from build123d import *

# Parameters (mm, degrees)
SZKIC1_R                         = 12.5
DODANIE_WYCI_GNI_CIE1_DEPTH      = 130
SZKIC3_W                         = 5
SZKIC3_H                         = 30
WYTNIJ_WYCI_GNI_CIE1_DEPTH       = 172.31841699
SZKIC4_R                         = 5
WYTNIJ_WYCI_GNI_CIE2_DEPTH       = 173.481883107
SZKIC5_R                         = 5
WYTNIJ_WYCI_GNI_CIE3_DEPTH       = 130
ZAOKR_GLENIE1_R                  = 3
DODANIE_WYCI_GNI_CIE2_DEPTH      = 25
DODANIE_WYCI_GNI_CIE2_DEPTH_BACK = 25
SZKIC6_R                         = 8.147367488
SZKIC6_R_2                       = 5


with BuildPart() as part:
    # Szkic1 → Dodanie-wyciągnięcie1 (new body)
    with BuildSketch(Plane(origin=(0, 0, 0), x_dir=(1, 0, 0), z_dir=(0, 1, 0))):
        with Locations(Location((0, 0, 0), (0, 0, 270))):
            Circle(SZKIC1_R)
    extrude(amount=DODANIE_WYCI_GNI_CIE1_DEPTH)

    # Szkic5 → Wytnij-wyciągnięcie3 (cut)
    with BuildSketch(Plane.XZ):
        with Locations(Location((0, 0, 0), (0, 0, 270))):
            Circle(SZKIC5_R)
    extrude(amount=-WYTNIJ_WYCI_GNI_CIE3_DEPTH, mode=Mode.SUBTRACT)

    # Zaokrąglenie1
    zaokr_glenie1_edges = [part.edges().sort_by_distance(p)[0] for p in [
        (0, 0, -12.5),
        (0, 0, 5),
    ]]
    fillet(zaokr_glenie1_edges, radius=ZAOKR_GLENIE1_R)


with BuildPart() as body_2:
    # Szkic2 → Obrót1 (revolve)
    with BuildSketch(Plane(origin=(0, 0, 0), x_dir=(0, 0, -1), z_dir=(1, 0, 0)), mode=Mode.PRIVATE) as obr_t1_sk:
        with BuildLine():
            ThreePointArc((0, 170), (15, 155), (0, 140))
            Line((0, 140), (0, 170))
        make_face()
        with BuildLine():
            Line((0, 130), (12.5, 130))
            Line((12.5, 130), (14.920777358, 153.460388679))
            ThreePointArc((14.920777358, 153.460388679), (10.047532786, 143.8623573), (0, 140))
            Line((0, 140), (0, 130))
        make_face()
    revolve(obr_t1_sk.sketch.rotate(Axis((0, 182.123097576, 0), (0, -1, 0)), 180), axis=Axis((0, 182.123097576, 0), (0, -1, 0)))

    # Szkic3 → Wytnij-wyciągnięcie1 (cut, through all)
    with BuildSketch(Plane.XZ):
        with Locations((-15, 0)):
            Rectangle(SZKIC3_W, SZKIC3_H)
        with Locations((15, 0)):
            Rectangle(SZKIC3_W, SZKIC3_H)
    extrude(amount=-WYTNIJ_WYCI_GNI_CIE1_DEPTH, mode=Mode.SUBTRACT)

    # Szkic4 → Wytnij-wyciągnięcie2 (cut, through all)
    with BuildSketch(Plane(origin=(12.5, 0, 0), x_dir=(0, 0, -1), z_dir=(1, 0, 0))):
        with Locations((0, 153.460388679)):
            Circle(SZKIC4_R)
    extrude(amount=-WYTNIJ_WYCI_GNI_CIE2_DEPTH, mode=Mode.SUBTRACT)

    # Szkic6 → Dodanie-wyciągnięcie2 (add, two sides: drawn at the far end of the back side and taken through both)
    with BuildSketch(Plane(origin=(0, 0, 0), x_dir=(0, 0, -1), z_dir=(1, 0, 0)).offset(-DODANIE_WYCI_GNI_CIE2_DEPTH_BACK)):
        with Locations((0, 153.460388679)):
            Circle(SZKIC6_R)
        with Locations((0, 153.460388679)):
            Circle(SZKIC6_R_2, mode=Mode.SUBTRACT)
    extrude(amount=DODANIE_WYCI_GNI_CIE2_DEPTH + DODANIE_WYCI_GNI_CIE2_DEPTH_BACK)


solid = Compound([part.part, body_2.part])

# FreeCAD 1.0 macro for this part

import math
import FreeCAD as App
import Part
import Sketcher


def edges_at(feature, points):
    """Names of the edges that pass closest to the given points."""
    edges = feature.Shape.Edges
    near = lambda p: min(range(len(edges)), key=lambda i: edges[i].distToShape(Part.Vertex(*p))[0])
    return sorted({f"Edge{near(p) + 1}" for p in points})

doc = App.newDocument("Part")
body = doc.addObject("PartDesign::Body", "Body")

# Sketch on XZ plane
sketch1 = body.newObject("Sketcher::SketchObject", "Sketch")
sketch1.AttachmentSupport = (doc.getObject("XZ_Plane"), [""])
sketch1.MapMode = "FlatFace"
sketch1.addGeometry(Part.Circle(App.Vector(0, 0, 0), App.Vector(0, 0, 1), 12), False)
sketch1.addConstraint([
    Sketcher.Constraint("Coincident", 0, 3, -1, 1),
    Sketcher.Constraint("Diameter", 0, 25.0),
])
pad1 = body.newObject("PartDesign::Pad", "Pad")
pad1.Profile = sketch1
pad1.Length = 130
pad1.Reversed = True

# Sketch on XZ plane
sketch2 = body.newObject("Sketcher::SketchObject", "Sketch001")
sketch2.AttachmentSupport = (doc.getObject("XZ_Plane"), [""])
sketch2.MapMode = "FlatFace"
sketch2.addGeometry(Part.Circle(App.Vector(0, 0, 0), App.Vector(0, 0, 1), 5), False)
sketch2.addConstraint([
    Sketcher.Constraint("Coincident", 0, 3, -1, 1),
    Sketcher.Constraint("Diameter", 0, 10.0),
])
pocket1 = body.newObject("PartDesign::Pocket", "Pocket")
pocket1.Profile = sketch2
pocket1.Length = 130
doc.recompute()

fillet = body.newObject("PartDesign::Fillet", "Fillet")
fillet.Base = (pocket1, edges_at(pocket1, [(0, 0, -12.5), (0, 0, 5)]))
fillet.Radius = 3
body2 = doc.addObject("PartDesign::Body", "Body001")

# Sketch on YZ plane
sketch3 = body2.newObject("Sketcher::SketchObject", "Sketch002")
sketch3.AttachmentSupport = (doc.getObject("YZ_Plane001"), [""])
sketch3.MapMode = "FlatFace"
sketch3.addGeometry([
    Part.ArcOfCircle(Part.Circle(App.Vector(155, 0, 0), App.Vector(0, 0, 1), 15), math.radians(-96), math.radians(0)),
    Part.LineSegment(App.Vector(170, 0, 0), App.Vector(130, 0, 0)),
    Part.LineSegment(App.Vector(130, 0, 0), App.Vector(130, -12, 0)),
    Part.LineSegment(App.Vector(130, -12, 0), App.Vector(153, -15, 0)),
], False)
sketch3.addConstraint([
    Sketcher.Constraint("Coincident", 0, 2, 1, 1),
    Sketcher.Constraint("Coincident", 1, 2, 2, 1),
    Sketcher.Constraint("Coincident", 2, 2, 3, 1),
    Sketcher.Constraint("Tangent", 3, 2, 0, 1),
    Sketcher.Constraint("Horizontal", 1),
    Sketcher.Constraint("Vertical", 2),
    Sketcher.Constraint("PointOnObject", 0, 3, -1),
    Sketcher.Constraint("PointOnObject", 0, 2, -1),
    Sketcher.Constraint("Radius", 0, 15.0),
    Sketcher.Constraint("DistanceX", 1, 2, 1, 1, 40.0),
    Sketcher.Constraint("DistanceY", 2, 2, 2, 1, 12.5),
    Sketcher.Constraint("DistanceX", -1, 1, 0, 3, 155.0),
])
revolution = body2.newObject("PartDesign::Revolution", "Revolution")
revolution.Profile = sketch3
revolution.ReferenceAxis = (sketch3, ["H_Axis"])
revolution.Angle = 360

# Sketch on XZ plane
sketch4 = body2.newObject("Sketcher::SketchObject", "Sketch003")
sketch4.AttachmentSupport = (doc.getObject("XZ_Plane001"), [""])
sketch4.MapMode = "FlatFace"
sketch4.addGeometry([
    Part.LineSegment(App.Vector(-18, 15, 0), App.Vector(-18, -15, 0)),  # 0
    Part.LineSegment(App.Vector(-18, -15, 0), App.Vector(-12, -15, 0)),  # 1
    Part.LineSegment(App.Vector(-12, -15, 0), App.Vector(-12, 15, 0)),  # 2
    Part.LineSegment(App.Vector(-12, 15, 0), App.Vector(-18, 15, 0)),  # 3
    Part.LineSegment(App.Vector(12, 15, 0), App.Vector(12, -15, 0)),  # 4
    Part.LineSegment(App.Vector(12, -15, 0), App.Vector(18, -15, 0)),  # 5
    Part.LineSegment(App.Vector(18, -15, 0), App.Vector(18, 15, 0)),  # 6
    Part.LineSegment(App.Vector(18, 15, 0), App.Vector(12, 15, 0)),  # 7
], False)
sketch4.addConstraint([
    Sketcher.Constraint("Coincident", 0, 2, 1, 1),
    Sketcher.Constraint("Coincident", 1, 2, 2, 1),
    Sketcher.Constraint("Coincident", 2, 2, 3, 1),
    Sketcher.Constraint("Coincident", 3, 2, 0, 1),
    Sketcher.Constraint("Coincident", 4, 2, 5, 1),
    Sketcher.Constraint("Coincident", 5, 2, 6, 1),
    Sketcher.Constraint("Coincident", 6, 2, 7, 1),
    Sketcher.Constraint("Coincident", 7, 2, 4, 1),
    Sketcher.Constraint("Vertical", 0),
    Sketcher.Constraint("Horizontal", 1),
    Sketcher.Constraint("Vertical", 2),
    Sketcher.Constraint("Horizontal", 3),
    Sketcher.Constraint("Vertical", 4),
    Sketcher.Constraint("Horizontal", 5),
    Sketcher.Constraint("Vertical", 6),
    Sketcher.Constraint("Horizontal", 7),
    Sketcher.Constraint("Symmetric", 2, 2, 4, 2, -1, 1),
    Sketcher.Constraint("Symmetric", 0, 2, 6, 2, -1, 1),
    Sketcher.Constraint("Horizontal", 1, 2, 4, 2),
    Sketcher.Constraint("DistanceX", 1, 1, 1, 2, 5.0),
    Sketcher.Constraint("DistanceY", 0, 2, 0, 1, 30.0),
    Sketcher.Constraint("DistanceX", 1, 2, 4, 2, 25.0),
])
pocket2 = body2.newObject("PartDesign::Pocket", "Pocket001")
pocket2.Profile = sketch4
pocket2.Type = "ThroughAll"

# Sketch on YZ plane
sketch5 = body2.newObject("Sketcher::SketchObject", "Sketch004")
sketch5.AttachmentSupport = (doc.getObject("YZ_Plane001"), [""])
sketch5.MapMode = "FlatFace"
sketch5.AttachmentOffset = App.Placement(App.Vector(0, 0, 12.5), App.Rotation())
sketch5.addGeometry(Part.Circle(App.Vector(153, 0, 0), App.Vector(0, 0, 1), 5), False)
sketch5.addConstraint([
    Sketcher.Constraint("PointOnObject", 0, 3, -1),
    Sketcher.Constraint("Diameter", 0, 10.0),
    Sketcher.Constraint("DistanceX", -1, 1, 0, 3, 153.460389),
])
pocket3 = body2.newObject("PartDesign::Pocket", "Pocket002")
pocket3.Profile = sketch5
pocket3.Type = "ThroughAll"

# Sketch on YZ plane
sketch6 = body2.newObject("Sketcher::SketchObject", "Sketch005")
sketch6.AttachmentSupport = (doc.getObject("YZ_Plane001"), [""])
sketch6.MapMode = "FlatFace"
sketch6.addGeometry([
    Part.Circle(App.Vector(153, 0, 0), App.Vector(0, 0, 1), 8),
    Part.Circle(App.Vector(153, 0, 0), App.Vector(0, 0, 1), 5),
], False)
sketch6.addConstraint([
    Sketcher.Constraint("Coincident", 1, 3, 0, 3),
    Sketcher.Constraint("PointOnObject", 0, 3, -1),
    Sketcher.Constraint("Diameter", 1, 10.0),
    Sketcher.Constraint("Diameter", 0, 16.294735),
    Sketcher.Constraint("DistanceX", -1, 1, 0, 3, 153.460389),
])
pad2 = body2.newObject("PartDesign::Pad", "Pad001")
pad2.Profile = sketch6
pad2.Type = "TwoLengths"
pad2.Length = 25
pad2.Length2 = 25

doc.recompute()
